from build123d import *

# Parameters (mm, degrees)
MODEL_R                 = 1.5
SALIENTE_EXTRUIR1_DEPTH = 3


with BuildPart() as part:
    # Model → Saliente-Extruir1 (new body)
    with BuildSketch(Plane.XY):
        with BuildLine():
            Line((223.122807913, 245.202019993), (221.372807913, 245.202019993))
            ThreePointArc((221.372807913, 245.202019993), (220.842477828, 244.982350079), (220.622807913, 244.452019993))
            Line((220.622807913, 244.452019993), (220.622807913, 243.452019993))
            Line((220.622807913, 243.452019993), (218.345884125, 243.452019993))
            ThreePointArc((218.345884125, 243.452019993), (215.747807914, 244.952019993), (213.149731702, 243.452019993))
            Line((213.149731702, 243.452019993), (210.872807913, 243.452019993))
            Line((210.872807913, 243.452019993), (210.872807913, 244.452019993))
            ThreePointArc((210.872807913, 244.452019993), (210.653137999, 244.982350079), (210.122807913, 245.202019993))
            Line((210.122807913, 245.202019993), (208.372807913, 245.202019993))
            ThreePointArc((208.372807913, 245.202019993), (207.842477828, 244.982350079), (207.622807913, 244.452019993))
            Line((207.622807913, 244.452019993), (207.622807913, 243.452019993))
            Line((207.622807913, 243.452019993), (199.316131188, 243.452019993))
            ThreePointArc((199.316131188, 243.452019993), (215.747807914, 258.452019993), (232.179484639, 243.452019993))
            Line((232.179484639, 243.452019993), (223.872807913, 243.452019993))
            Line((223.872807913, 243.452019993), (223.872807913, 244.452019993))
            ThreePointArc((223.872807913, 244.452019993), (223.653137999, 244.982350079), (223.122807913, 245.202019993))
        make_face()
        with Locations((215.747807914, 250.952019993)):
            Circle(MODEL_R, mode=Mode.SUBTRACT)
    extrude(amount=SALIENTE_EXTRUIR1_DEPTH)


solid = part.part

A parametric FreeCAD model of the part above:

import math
import FreeCAD as App
import Part
import Sketcher

V = App.Vector
Q = App.Units.Quantity

doc = App.newDocument("Part")
body = doc.addObject("PartDesign::Body", "Body")

sketch1 = doc.addObject("Sketcher::SketchObject", "Sketch")
body.addObject(sketch1)
sketch1.AttachmentSupport = (doc.XY_Plane, [""])
sketch1.MapMode = "FlatFace"
sketch1.addGeometry(Part.LineSegment(V(221.4, 245.2, 0), V(223.1, 245.2, 0)), False)
sketch1.addGeometry(Part.ArcOfCircle(Part.Circle(V(223.1, 244.5, 0), V(0, 0, 1), 0.8), math.radians(0), math.radians(90)), False)
sketch1.addGeometry(Part.LineSegment(V(223.9, 244.5, 0), V(223.9, 243.5, 0)), False)
sketch1.addGeometry(Part.LineSegment(V(223.9, 243.5, 0), V(232.2, 243.5, 0)), False)
sketch1.addGeometry(Part.ArcOfCircle(Part.Circle(V(215.7, 242, 0), V(0, 0, 1), 16.5), math.radians(5), math.radians(175)), False)
sketch1.addGeometry(Part.LineSegment(V(199.3, 243.5, 0), V(207.6, 243.5, 0)), False)
sketch1.addGeometry(Part.LineSegment(V(207.6, 243.5, 0), V(207.6, 244.5, 0)), False)
sketch1.addGeometry(Part.ArcOfCircle(Part.Circle(V(208.4, 244.5, 0), V(0, 0, 1), 0.8), math.radians(90), math.radians(180)), False)
sketch1.addGeometry(Part.LineSegment(V(208.4, 245.2, 0), V(210.1, 245.2, 0)), False)
sketch1.addGeometry(Part.ArcOfCircle(Part.Circle(V(210.1, 244.5, 0), V(0, 0, 1), 0.8), math.radians(0), math.radians(90)), False)
sketch1.addGeometry(Part.LineSegment(V(210.9, 244.5, 0), V(210.9, 243.5, 0)), False)
sketch1.addGeometry(Part.LineSegment(V(210.9, 243.5, 0), V(213.1, 243.5, 0)), False)
sketch1.addGeometry(Part.ArcOfCircle(Part.Circle(V(215.7, 242, 0), V(0, 0, 1), 3), math.radians(30), math.radians(150)), False)
sketch1.addGeometry(Part.LineSegment(V(218.3, 243.5, 0), V(220.6, 243.5, 0)), False)
sketch1.addGeometry(Part.LineSegment(V(220.6, 243.5, 0), V(220.6, 244.5, 0)), False)
sketch1.addGeometry(Part.ArcOfCircle(Part.Circle(V(221.4, 244.5, 0), V(0, 0, 1), 0.8), math.radians(90), math.radians(180)), False)
sketch1.addGeometry(Part.Circle(V(215.7, 251, 0), V(0, 0, 1), 1.5), False)
sketch1.addConstraint(Sketcher.Constraint("Tangent", 0, 2, 1, 2))
sketch1.addConstraint(Sketcher.Constraint("Tangent", 1, 1, 2, 1))
sketch1.addConstraint(Sketcher.Constraint("Coincident", 2, 2, 3, 1))
sketch1.addConstraint(Sketcher.Constraint("Coincident", 3, 2, 4, 1))
sketch1.addConstraint(Sketcher.Constraint("Coincident", 4, 2, 5, 1))
sketch1.addConstraint(Sketcher.Constraint("Coincident", 5, 2, 6, 1))
sketch1.addConstraint(Sketcher.Constraint("Tangent", 6, 2, 7, 2))
sketch1.addConstraint(Sketcher.Constraint("Tangent", 7, 1, 8, 1))
sketch1.addConstraint(Sketcher.Constraint("Tangent", 8, 2, 9, 2))
sketch1.addConstraint(Sketcher.Constraint("Tangent", 9, 1, 10, 1))
sketch1.addConstraint(Sketcher.Constraint("Coincident", 10, 2, 11, 1))
sketch1.addConstraint(Sketcher.Constraint("Coincident", 11, 2, 12, 2))
sketch1.addConstraint(Sketcher.Constraint("Coincident", 12, 1, 13, 1))
sketch1.addConstraint(Sketcher.Constraint("Coincident", 13, 2, 14, 1))
sketch1.addConstraint(Sketcher.Constraint("Tangent", 14, 2, 15, 2))
sketch1.addConstraint(Sketcher.Constraint("Tangent", 15, 1, 0, 1))
sketch1.addConstraint(Sketcher.Constraint("Horizontal", 0))
sketch1.addConstraint(Sketcher.Constraint("Vertical", 2))
sketch1.addConstraint(Sketcher.Constraint("Horizontal", 3))
sketch1.addConstraint(Sketcher.Constraint("Horizontal", 5))
sketch1.addConstraint(Sketcher.Constraint("Vertical", 6))
sketch1.addConstraint(Sketcher.Constraint("Horizontal", 8))
sketch1.addConstraint(Sketcher.Constraint("Vertical", 10))
sketch1.addConstraint(Sketcher.Constraint("Horizontal", 11))
sketch1.addConstraint(Sketcher.Constraint("Horizontal", 13))
sketch1.addConstraint(Sketcher.Constraint("Vertical", 14))
sketch1.addConstraint(Sketcher.Constraint("Coincident", 12, 3, 4, 3))
sketch1.addConstraint(Sketcher.Constraint("Equal", 1, 7))
sketch1.addConstraint(Sketcher.Constraint("Equal", 7, 9))
sketch1.addConstraint(Sketcher.Constraint("Equal", 9, 15))
sketch1.addConstraint(Sketcher.Constraint("Horizontal", 1, 3, 7, 3))
sketch1.addConstraint(Sketcher.Constraint("Horizontal", 3, 2, 4, 2))
sketch1.addConstraint(Sketcher.Constraint("Horizontal", 5, 2, 10, 2))
sketch1.addConstraint(Sketcher.Constraint("Horizontal", 11, 2, 12, 1))
sketch1.addConstraint(Sketcher.Constraint("Vertical", 12, 3, 16, 3))
sketch1.addConstraint(Sketcher.Constraint("Equal", 3, 5))
sketch1.addConstraint(Sketcher.Constraint("Equal", 0, 8))
sketch1.addConstraint(Sketcher.Constraint("Diameter", 16, Q("3 mm")))
sketch1.addConstraint(Sketcher.Constraint("Radius", 12, Q("3 mm")))
sketch1.addConstraint(Sketcher.Constraint("Radius", 4, Q("16.5 mm")))
sketch1.addConstraint(Sketcher.Constraint("DistanceY", 2, 2, 2, 1, Q("1 mm")))
sketch1.addConstraint(Sketcher.Constraint("Radius", 1, Q("0.75 mm")))
sketch1.addConstraint(Sketcher.Constraint("DistanceX", 9, 3, 1, 3, Q("13 mm")))
sketch1.addConstraint(Sketcher.Constraint("DistanceY", 4, 3, 16, 3, Q("9 mm")))
sketch1.addConstraint(Sketcher.Constraint("DistanceX", 0, 1, 0, 2, Q("1.75 mm")))
sketch1.addConstraint(Sketcher.Constraint("DistanceY", 4, 3, 1, 3, Q("2.5 mm")))
sketch1.addConstraint(Sketcher.Constraint("DistanceY", -1, 1, 1, 3, Q("244.45202 mm")))
sketch1.addConstraint(Sketcher.Constraint("DistanceX", -1, 1, 4, 2, Q("199.316131 mm")))
pad1 = doc.addObject("PartDesign::Pad", "Pad")
body.addObject(pad1)
pad1.Profile = sketch1
pad1.Length = 3

doc.recompute()
